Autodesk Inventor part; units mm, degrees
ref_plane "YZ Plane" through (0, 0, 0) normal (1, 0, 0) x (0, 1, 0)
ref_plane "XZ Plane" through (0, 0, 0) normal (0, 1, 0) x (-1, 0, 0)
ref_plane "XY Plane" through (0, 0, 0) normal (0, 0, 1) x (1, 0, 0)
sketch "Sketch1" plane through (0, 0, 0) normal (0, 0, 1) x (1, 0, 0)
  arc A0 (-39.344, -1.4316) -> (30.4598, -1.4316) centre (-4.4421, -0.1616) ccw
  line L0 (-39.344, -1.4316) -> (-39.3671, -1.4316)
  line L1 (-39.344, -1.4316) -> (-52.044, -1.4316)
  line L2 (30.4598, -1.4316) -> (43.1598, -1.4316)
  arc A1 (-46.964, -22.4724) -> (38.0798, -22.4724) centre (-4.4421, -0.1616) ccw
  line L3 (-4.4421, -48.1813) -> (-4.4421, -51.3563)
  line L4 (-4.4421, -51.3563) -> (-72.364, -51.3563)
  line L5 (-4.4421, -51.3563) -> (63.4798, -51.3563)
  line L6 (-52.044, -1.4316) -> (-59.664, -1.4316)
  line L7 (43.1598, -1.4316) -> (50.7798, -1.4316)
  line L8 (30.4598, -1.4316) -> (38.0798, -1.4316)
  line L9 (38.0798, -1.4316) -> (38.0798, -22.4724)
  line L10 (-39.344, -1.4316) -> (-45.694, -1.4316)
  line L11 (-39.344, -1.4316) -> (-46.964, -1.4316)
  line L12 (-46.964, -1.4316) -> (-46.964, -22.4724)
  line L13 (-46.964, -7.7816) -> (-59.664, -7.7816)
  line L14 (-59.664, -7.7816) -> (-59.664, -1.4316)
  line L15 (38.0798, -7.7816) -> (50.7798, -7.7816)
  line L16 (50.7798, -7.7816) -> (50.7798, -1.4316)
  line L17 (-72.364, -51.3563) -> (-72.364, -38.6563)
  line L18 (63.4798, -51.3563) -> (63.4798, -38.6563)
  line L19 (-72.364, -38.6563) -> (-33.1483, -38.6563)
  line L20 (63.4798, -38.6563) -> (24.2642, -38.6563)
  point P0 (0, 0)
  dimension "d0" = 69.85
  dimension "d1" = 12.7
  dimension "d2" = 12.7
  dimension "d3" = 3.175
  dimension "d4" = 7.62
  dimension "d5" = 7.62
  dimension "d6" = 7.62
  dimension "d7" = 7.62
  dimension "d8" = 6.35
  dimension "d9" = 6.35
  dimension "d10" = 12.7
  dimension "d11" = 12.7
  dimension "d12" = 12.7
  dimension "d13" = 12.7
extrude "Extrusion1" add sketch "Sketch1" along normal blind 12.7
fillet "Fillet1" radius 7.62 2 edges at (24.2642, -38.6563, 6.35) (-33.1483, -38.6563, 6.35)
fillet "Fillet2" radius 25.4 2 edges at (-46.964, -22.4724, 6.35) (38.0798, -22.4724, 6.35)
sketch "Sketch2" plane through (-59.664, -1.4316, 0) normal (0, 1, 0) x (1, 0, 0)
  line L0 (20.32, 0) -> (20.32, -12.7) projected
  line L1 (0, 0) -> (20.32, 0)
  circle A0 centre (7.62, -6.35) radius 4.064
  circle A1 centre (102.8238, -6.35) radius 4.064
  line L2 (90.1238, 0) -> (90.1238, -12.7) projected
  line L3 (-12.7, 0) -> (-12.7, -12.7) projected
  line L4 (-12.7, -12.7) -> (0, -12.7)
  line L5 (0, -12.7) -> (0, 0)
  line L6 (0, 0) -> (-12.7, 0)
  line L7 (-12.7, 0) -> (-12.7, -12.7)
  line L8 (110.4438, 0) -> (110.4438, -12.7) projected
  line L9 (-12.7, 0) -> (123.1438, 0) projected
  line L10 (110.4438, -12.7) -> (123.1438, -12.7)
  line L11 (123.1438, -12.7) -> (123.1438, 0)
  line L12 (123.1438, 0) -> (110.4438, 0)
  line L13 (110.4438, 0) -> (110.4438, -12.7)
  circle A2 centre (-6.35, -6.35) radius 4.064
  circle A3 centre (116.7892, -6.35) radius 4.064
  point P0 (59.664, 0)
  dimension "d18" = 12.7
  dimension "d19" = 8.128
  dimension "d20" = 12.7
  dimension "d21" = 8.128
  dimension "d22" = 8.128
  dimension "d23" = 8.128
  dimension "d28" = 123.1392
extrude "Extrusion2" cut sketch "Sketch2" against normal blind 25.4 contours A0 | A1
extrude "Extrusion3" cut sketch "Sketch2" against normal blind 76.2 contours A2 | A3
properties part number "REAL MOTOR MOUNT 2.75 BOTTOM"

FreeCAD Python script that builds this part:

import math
import FreeCAD as App
import Part
import Sketcher
Q = App.Units.Quantity


def edges_at(feature, points):
    """Names of the edges that pass closest to the given points."""
    edges = feature.Shape.Edges
    near = lambda p: min(range(len(edges)), key=lambda i: edges[i].distToShape(Part.Vertex(*p))[0])
    return sorted({f"Edge{near(p) + 1}" for p in points})

doc = App.newDocument("Part")
body = doc.addObject("PartDesign::Body", "Body")

# Sketch on XY plane
sketch1 = body.newObject("Sketcher::SketchObject", "Sketch")
sketch1.AttachmentSupport = (doc.getObject("XY_Plane"), [""])
sketch1.MapMode = "FlatFace"
sketch1.addGeometry([
    Part.ArcOfCircle(Part.Circle(App.Vector(-4, 0, 0), App.Vector(0, 0, 1), 35), math.radians(-178), math.radians(-2)),  # 0
    Part.LineSegment(App.Vector(-39, -1, 0), App.Vector(-60, -1, 0)),  # 1
    Part.LineSegment(App.Vector(-60, -1, 0), App.Vector(-60, -8, 0)),  # 2
    Part.LineSegment(App.Vector(-60, -8, 0), App.Vector(-47, -8, 0)),  # 3
    Part.LineSegment(App.Vector(-47, -8, 0), App.Vector(-47, -22, 0)),  # 4
    Part.ArcOfCircle(Part.Circle(App.Vector(-4, 0, 0), App.Vector(0, 0, 1), 48), math.radians(-152), math.radians(-127)),  # 5
    Part.LineSegment(App.Vector(-33, -39, 0), App.Vector(-72, -39, 0)),  # 6
    Part.LineSegment(App.Vector(-72, -39, 0), App.Vector(-72, -51, 0)),  # 7
    Part.LineSegment(App.Vector(-72, -51, 0), App.Vector(63, -51, 0)),  # 8
    Part.LineSegment(App.Vector(63, -51, 0), App.Vector(63, -39, 0)),  # 9
    Part.LineSegment(App.Vector(63, -39, 0), App.Vector(24, -39, 0)),  # 10
    Part.ArcOfCircle(Part.Circle(App.Vector(-4, 0, 0), App.Vector(0, 0, 1), 48), math.radians(-53), math.radians(-28)),  # 11
    Part.LineSegment(App.Vector(38, -22, 0), App.Vector(38, -8, 0)),  # 12
    Part.LineSegment(App.Vector(38, -8, 0), App.Vector(51, -8, 0)),  # 13
    Part.LineSegment(App.Vector(51, -8, 0), App.Vector(51, -1, 0)),  # 14
    Part.LineSegment(App.Vector(51, -1, 0), App.Vector(30, -1, 0)),  # 15
], False)
sketch1.addConstraint([
    Sketcher.Constraint("Coincident", 0, 1, 1, 1),
    Sketcher.Constraint("Coincident", 1, 2, 2, 1),
    Sketcher.Constraint("Coincident", 2, 2, 3, 1),
    Sketcher.Constraint("Coincident", 3, 2, 4, 1),
    Sketcher.Constraint("Coincident", 4, 2, 5, 1),
    Sketcher.Constraint("Coincident", 5, 2, 6, 1),
    Sketcher.Constraint("Coincident", 6, 2, 7, 1),
    Sketcher.Constraint("Coincident", 7, 2, 8, 1),
    Sketcher.Constraint("Coincident", 8, 2, 9, 1),
    Sketcher.Constraint("Coincident", 9, 2, 10, 1),
    Sketcher.Constraint("Coincident", 10, 2, 11, 1),
    Sketcher.Constraint("Coincident", 11, 2, 12, 1),
    Sketcher.Constraint("Coincident", 12, 2, 13, 1),
    Sketcher.Constraint("Coincident", 13, 2, 14, 1),
    Sketcher.Constraint("Coincident", 14, 2, 15, 1),
    Sketcher.Constraint("Coincident", 15, 2, 0, 2),
    Sketcher.Constraint("Horizontal", 1),
    Sketcher.Constraint("Vertical", 2),
    Sketcher.Constraint("Horizontal", 3),
    Sketcher.Constraint("Vertical", 4),
    Sketcher.Constraint("Horizontal", 6),
    Sketcher.Constraint("Vertical", 7),
    Sketcher.Constraint("Horizontal", 8),
    Sketcher.Constraint("Vertical", 9),
    Sketcher.Constraint("Horizontal", 10),
    Sketcher.Constraint("Vertical", 12),
    Sketcher.Constraint("Horizontal", 13),
    Sketcher.Constraint("Vertical", 14),
    Sketcher.Constraint("Horizontal", 15),
    Sketcher.Constraint("Coincident", 5, 3, 0, 3),
    Sketcher.Constraint("Coincident", 11, 3, 0, 3),
    Sketcher.Constraint("Equal", 5, 11),
    Sketcher.Constraint("Horizontal", 6, 2, 9, 2),
    Sketcher.Constraint("Horizontal", 4, 2, 11, 2),
    Sketcher.Constraint("Horizontal", 3, 2, 12, 2),
    Sketcher.Constraint("Horizontal", 1, 2, 14, 2),
    Sketcher.Constraint("Equal", 6, 10),
    Sketcher.Constraint("Equal", 3, 13),
    Sketcher.Constraint("Equal", 13, 7),
    Sketcher.Constraint("DistanceX", 3, 1, 3, 2, Q("0.5 in")),
    Sketcher.Constraint("Radius", 0, Q("1.375 in")),
    Sketcher.Constraint("DistanceY", 2, 2, 2, 1, Q("0.25 in")),
    Sketcher.Constraint("DistanceY", 2, 2, 0, 3, Q("0.3 in")),
    Sketcher.Constraint("DistanceX", 3, 2, 0, 1, Q("0.3 in")),
    Sketcher.Constraint("DistanceX", 6, 2, 2, 2, Q("0.5 in")),
    Sketcher.Constraint("Radius", 5, Q("48.0196 mm")),
    Sketcher.Constraint("DistanceX", 6, 2, 6, 1, Q("39.2157 mm")),
    Sketcher.Constraint("DistanceY", 5, 2, -1, 1, Q("1.5219 in")),
    Sketcher.Constraint("DistanceX", -1, 1, 8, 2, Q("2.4992 in")),
])
pad1 = body.newObject("PartDesign::Pad", "Pad")
pad1.Profile = sketch1
pad1.Length = Q("0.5 in")
doc.recompute()

fillet = body.newObject("PartDesign::Fillet", "Fillet")
fillet.Base = (pad1, edges_at(pad1, [(24.264, -38.656, 6.35), (-33.148, -38.656, 6.35)]))
fillet.Radius = Q("0.3 in")
doc.recompute()

fillet2 = body.newObject("PartDesign::Fillet", "Fillet001")
fillet2.Base = (fillet, edges_at(fillet, [(-46.964, -22.472, 6.35), (38.08, -22.472, 6.35)]))
fillet2.Radius = Q("1 in")

# Sketch on XZ plane
sketch2 = body.newObject("Sketcher::SketchObject", "Sketch001")
sketch2.AttachmentSupport = (doc.getObject("XZ_Plane"), [""])
sketch2.MapMode = "FlatFace"
sketch2.AttachmentOffset = App.Placement(App.Vector(0, 0, 1.4316), App.Rotation())
sketch2.addGeometry([
    Part.Circle(App.Vector(-52, 6.3, 0), App.Vector(0, 0, 1), 4.1),
    Part.Circle(App.Vector(43.2, 6.3, 0), App.Vector(0, 0, 1), 4.1),
], False)
sketch2.addConstraint([
    Sketcher.Constraint("Equal", 0, 1),
    Sketcher.Constraint("Horizontal", 0, 3, 1, 3),
    Sketcher.Constraint("Diameter", 0, Q("0.32 in")),
    Sketcher.Constraint("DistanceY", -1, 1, 0, 3, Q("0.25 in")),
    Sketcher.Constraint("DistanceX", -1, 1, 1, 3, Q("1.6992 in")),
    Sketcher.Constraint("DistanceX", 0, 3, -1, 1, Q("52.044 mm")),
])
pocket1 = body.newObject("PartDesign::Pocket", "Pocket")
pocket1.Profile = sketch2
pocket1.Length = Q("1 in")
pocket1.Reversed = True

# Sketch on XZ plane
sketch3 = body.newObject("Sketcher::SketchObject", "Sketch002")
sketch3.AttachmentSupport = (doc.getObject("XZ_Plane"), [""])
sketch3.MapMode = "FlatFace"
sketch3.AttachmentOffset = App.Placement(App.Vector(0, 0, 1.4316), App.Rotation())
sketch3.addGeometry([
    Part.Circle(App.Vector(-66, 6.3, 0), App.Vector(0, 0, 1), 4.1),
    Part.Circle(App.Vector(57.1, 6.3, 0), App.Vector(0, 0, 1), 4.1),
], False)
sketch3.addConstraint([
    Sketcher.Constraint("Equal", 0, 1),
    Sketcher.Constraint("Horizontal", 0, 3, 1, 3),
    Sketcher.Constraint("Diameter", 0, Q("0.32 in")),
    Sketcher.Constraint("DistanceX", 0, 3, 1, 3, Q("4.848 in")),
    Sketcher.Constraint("DistanceY", -1, 1, 0, 3, Q("0.25 in")),
    Sketcher.Constraint("DistanceX", 0, 3, -1, 1, Q("66.014 mm")),
])
pocket2 = body.newObject("PartDesign::Pocket", "Pocket001")
pocket2.Profile = sketch3
pocket2.Length = Q("3 in")
pocket2.Reversed = True

doc.recompute()
